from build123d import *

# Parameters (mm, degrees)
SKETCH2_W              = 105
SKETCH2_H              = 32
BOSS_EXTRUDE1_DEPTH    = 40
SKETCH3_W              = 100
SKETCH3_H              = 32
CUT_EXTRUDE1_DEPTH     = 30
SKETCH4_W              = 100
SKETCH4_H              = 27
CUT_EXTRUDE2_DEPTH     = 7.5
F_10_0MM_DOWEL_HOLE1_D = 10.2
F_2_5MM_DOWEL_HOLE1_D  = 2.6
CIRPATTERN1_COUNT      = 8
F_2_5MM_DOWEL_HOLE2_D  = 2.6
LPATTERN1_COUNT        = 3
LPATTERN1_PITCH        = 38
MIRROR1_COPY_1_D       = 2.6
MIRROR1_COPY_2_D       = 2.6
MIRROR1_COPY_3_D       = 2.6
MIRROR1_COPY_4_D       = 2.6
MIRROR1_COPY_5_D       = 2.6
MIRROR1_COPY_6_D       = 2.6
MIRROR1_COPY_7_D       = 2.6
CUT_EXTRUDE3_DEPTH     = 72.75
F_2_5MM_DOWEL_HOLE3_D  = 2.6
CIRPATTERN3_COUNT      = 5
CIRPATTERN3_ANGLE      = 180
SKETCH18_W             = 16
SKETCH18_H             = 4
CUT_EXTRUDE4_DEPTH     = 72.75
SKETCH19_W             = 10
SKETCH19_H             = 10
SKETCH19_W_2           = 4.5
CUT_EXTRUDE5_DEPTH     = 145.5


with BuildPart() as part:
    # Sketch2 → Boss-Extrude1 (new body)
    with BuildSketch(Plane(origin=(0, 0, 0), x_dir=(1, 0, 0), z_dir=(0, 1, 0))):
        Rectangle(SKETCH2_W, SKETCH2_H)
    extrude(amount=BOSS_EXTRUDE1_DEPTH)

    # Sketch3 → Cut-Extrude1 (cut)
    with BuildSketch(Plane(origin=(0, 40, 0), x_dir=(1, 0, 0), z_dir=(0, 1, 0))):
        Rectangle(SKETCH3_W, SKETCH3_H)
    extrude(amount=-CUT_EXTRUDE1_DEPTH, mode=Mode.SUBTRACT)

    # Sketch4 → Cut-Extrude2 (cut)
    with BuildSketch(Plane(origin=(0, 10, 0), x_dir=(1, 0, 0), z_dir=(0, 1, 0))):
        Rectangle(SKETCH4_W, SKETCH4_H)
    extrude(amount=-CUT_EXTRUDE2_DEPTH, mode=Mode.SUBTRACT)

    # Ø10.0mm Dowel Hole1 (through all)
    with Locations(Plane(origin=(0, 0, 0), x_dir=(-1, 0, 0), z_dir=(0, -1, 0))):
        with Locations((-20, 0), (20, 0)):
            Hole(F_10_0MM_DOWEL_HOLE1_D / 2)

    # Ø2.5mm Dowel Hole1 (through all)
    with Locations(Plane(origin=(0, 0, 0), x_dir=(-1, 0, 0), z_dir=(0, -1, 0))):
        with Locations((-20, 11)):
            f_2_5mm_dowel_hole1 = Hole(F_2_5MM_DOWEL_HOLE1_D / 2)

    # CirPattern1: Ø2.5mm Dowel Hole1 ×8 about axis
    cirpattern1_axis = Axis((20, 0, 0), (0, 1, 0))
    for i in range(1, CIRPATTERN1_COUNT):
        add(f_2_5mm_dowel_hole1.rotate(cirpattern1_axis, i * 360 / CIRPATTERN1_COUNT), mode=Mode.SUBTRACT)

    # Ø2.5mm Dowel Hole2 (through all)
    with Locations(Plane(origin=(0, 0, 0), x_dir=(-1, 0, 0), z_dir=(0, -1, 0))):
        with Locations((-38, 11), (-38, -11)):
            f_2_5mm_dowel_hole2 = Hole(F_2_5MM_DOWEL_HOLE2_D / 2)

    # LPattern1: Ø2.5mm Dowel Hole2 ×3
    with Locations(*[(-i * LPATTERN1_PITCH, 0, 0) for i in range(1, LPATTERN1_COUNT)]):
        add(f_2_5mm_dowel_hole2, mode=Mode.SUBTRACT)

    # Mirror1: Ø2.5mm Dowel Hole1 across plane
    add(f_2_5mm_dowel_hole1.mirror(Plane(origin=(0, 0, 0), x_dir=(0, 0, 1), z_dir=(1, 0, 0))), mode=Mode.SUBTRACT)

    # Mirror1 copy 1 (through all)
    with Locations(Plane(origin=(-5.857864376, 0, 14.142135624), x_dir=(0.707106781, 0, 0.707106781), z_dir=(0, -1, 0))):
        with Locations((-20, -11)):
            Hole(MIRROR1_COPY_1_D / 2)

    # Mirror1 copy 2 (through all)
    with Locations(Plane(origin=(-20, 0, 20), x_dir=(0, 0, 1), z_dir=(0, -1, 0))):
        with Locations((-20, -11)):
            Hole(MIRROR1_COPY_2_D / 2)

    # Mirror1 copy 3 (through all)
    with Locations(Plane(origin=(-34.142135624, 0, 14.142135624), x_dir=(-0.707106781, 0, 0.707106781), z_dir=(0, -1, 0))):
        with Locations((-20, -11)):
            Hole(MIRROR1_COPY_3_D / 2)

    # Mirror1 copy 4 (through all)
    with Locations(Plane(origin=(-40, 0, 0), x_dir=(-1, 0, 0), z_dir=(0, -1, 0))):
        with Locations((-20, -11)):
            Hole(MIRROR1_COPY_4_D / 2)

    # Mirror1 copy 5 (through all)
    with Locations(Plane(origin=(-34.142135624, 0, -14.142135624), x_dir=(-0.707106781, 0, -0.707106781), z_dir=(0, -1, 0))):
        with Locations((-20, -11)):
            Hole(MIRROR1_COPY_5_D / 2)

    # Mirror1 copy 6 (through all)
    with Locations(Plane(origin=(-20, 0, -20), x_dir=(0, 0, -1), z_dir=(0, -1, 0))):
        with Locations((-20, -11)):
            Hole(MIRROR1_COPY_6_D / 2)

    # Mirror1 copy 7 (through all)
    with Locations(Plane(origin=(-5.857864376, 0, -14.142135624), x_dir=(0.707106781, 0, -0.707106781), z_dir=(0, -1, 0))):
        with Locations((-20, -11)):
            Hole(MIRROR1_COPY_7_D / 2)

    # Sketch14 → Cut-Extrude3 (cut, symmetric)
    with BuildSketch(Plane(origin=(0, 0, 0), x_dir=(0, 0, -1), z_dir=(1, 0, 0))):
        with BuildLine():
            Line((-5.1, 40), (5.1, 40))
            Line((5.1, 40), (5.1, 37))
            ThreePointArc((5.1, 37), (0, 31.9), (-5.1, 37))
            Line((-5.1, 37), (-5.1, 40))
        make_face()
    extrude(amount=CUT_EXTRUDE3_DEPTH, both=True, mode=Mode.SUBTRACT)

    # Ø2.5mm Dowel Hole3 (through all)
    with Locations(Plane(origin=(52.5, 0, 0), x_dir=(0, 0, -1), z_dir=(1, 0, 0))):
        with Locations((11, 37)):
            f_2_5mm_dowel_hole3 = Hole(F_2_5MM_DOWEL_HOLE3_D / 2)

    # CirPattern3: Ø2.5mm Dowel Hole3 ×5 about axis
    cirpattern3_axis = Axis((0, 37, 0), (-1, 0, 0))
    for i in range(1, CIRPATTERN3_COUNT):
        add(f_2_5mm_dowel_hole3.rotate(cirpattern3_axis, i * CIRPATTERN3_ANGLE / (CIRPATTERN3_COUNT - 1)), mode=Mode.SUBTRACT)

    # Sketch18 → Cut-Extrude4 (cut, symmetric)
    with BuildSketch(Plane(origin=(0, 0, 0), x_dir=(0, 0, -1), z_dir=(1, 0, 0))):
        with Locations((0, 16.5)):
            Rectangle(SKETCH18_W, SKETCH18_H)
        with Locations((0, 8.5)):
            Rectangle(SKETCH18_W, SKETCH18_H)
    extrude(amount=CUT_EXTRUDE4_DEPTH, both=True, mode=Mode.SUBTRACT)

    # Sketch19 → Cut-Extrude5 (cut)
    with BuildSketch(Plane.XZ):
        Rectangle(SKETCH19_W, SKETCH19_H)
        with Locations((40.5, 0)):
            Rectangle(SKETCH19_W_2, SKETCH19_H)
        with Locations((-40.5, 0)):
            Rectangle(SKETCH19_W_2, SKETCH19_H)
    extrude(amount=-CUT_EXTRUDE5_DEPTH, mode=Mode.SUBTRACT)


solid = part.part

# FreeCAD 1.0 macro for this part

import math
import FreeCAD as App
import Part
import Sketcher


def add_polygon(sketch, points):
    """Adds a closed chain of lines whose ends are joined by coincident constraints."""
    first, n = sketch.GeometryCount, len(points)
    for a, b in zip(points, points[1:] + points[:1]):
        sketch.addGeometry(Part.LineSegment(App.Vector(*a, 0), App.Vector(*b, 0)), False)
    for i in range(n):
        sketch.addConstraint(Sketcher.Constraint("Coincident", first + i, 2, first + (i + 1) % n, 1))

doc = App.newDocument("Part")
body = doc.addObject("PartDesign::Body", "Body")

sketch1 = doc.addObject("Sketcher::SketchObject", "Sketch")
body.addObject(sketch1)
sketch1.AttachmentSupport = (doc.XZ_Plane, [""])
sketch1.MapMode = "FlatFace"
add_polygon(sketch1, [(-52.5, -16), (-52.5, 16), (52.5, 16), (52.5, -16)])
sketch1.addConstraint([
    Sketcher.Constraint("Vertical", 0),
    Sketcher.Constraint("Horizontal", 1),
    Sketcher.Constraint("Vertical", 2),
    Sketcher.Constraint("Horizontal", 3),
    Sketcher.Constraint("Symmetric", 0, 2, 2, 2, -1, 1),
    Sketcher.Constraint("DistanceX", 1, 1, 1, 2, 105.0),
    Sketcher.Constraint("DistanceY", 0, 1, 0, 2, 32.0),
])
pad1 = doc.addObject("PartDesign::Pad", "Pad")
body.addObject(pad1)
pad1.Profile = sketch1
pad1.Length = 40
pad1.Reversed = True

sketch2 = doc.addObject("Sketcher::SketchObject", "Sketch001")
body.addObject(sketch2)
sketch2.AttachmentSupport = (doc.XZ_Plane, [""])
sketch2.MapMode = "FlatFace"
sketch2.AttachmentOffset = App.Placement(App.Vector(0, 0, -40), App.Rotation())
add_polygon(sketch2, [(-50, -16), (-50, 16), (50, 16), (50, -16)])
sketch2.addConstraint([
    Sketcher.Constraint("Vertical", 0),
    Sketcher.Constraint("Horizontal", 1),
    Sketcher.Constraint("Vertical", 2),
    Sketcher.Constraint("Horizontal", 3),
    Sketcher.Constraint("Symmetric", 0, 2, 2, 2, -1, 1),
    Sketcher.Constraint("DistanceX", 1, 1, 1, 2, 100.0),
    Sketcher.Constraint("DistanceY", 0, 1, 0, 2, 32.0),
])
pocket1 = doc.addObject("PartDesign::Pocket", "Pocket")
body.addObject(pocket1)
pocket1.Profile = sketch2
pocket1.Length = 30
pocket1.Reversed = True

sketch3 = doc.addObject("Sketcher::SketchObject", "Sketch002")
body.addObject(sketch3)
sketch3.AttachmentSupport = (doc.XZ_Plane, [""])
sketch3.MapMode = "FlatFace"
sketch3.AttachmentOffset = App.Placement(App.Vector(0, 0, -10), App.Rotation())
add_polygon(sketch3, [(-50, -13.5), (-50, 13.5), (50, 13.5), (50, -13.5)])
sketch3.addConstraint([
    Sketcher.Constraint("Vertical", 0),
    Sketcher.Constraint("Horizontal", 1),
    Sketcher.Constraint("Vertical", 2),
    Sketcher.Constraint("Horizontal", 3),
    Sketcher.Constraint("Symmetric", 0, 2, 2, 2, -1, 1),
    Sketcher.Constraint("DistanceX", 1, 1, 1, 2, 100.0),
    Sketcher.Constraint("DistanceY", 0, 1, 0, 2, 27.0),
])
pocket2 = doc.addObject("PartDesign::Pocket", "Pocket001")
body.addObject(pocket2)
pocket2.Profile = sketch3
pocket2.Length = 7.5
pocket2.Reversed = True

sketch4 = doc.addObject("Sketcher::SketchObject", "Sketch003")
body.addObject(sketch4)
sketch4.AttachmentSupport = (doc.XZ_Plane, [""])
sketch4.MapMode = "FlatFace"
sketch4.addGeometry([
    Part.Circle(App.Vector(20, 0, 0), App.Vector(0, 0, 1), 5.1),
    Part.Circle(App.Vector(-20, 0, 0), App.Vector(0, 0, 1), 5.1),
], False)
sketch4.addConstraint([
    Sketcher.Constraint("Equal", 0, 1),
    Sketcher.Constraint("Symmetric", 0, 3, 1, 3, -1, 1),
    Sketcher.Constraint("PointOnObject", 0, 3, -1),
    Sketcher.Constraint("Diameter", 0, 10.2),
    Sketcher.Constraint("DistanceX", -1, 1, 0, 3, 20.0),
])
doc.recompute()
hole = doc.addObject("PartDesign::Hole", "Hole")
body.addObject(hole)
hole.Profile = sketch4
hole.ThreadType = "None"
hole.Diameter = 10.2
hole.DepthType = "ThroughAll"

sketch5 = doc.addObject("Sketcher::SketchObject", "Sketch004")
body.addObject(sketch5)
sketch5.AttachmentSupport = (doc.XZ_Plane, [""])
sketch5.MapMode = "FlatFace"
sketch5.addGeometry(Part.Circle(App.Vector(20, -11, 0), App.Vector(0, 0, 1), 1.3), False)
sketch5.addConstraint([
    Sketcher.Constraint("Diameter", 0, 2.6),
    Sketcher.Constraint("DistanceX", -1, 1, 0, 3, 20.0),
    Sketcher.Constraint("DistanceY", 0, 3, -1, 1, 11.0),
])
doc.recompute()
hole2 = doc.addObject("PartDesign::Hole", "Hole001")
body.addObject(hole2)
hole2.Profile = sketch5
hole2.ThreadType = "None"
hole2.Diameter = 2.6
hole2.DepthType = "ThroughAll"
doc.recompute()

datumline = doc.addObject("PartDesign::Line", "DatumLine")
body.addObject(datumline)
datumline.Placement = App.Placement(App.Vector(20, 0, 0), App.Rotation(App.Vector(0, 0, 1), App.Vector(0, 1, 0)))
polarpattern = doc.addObject("PartDesign::PolarPattern", "PolarPattern")
body.addObject(polarpattern)
polarpattern.Originals = [hole2]
polarpattern.Axis = (datumline, [""])
polarpattern.Angle = 360
polarpattern.Occurrences = 8
body.Tip = polarpattern

sketch6 = doc.addObject("Sketcher::SketchObject", "Sketch005")
body.addObject(sketch6)
sketch6.AttachmentSupport = (doc.XZ_Plane, [""])
sketch6.MapMode = "FlatFace"
sketch6.addGeometry([
    Part.Circle(App.Vector(38, -11, 0), App.Vector(0, 0, 1), 1.3),
    Part.Circle(App.Vector(38, 11, 0), App.Vector(0, 0, 1), 1.3),
], False)
sketch6.addConstraint([
    Sketcher.Constraint("Equal", 0, 1),
    Sketcher.Constraint("Symmetric", 0, 3, 1, 3, -1),
    Sketcher.Constraint("Diameter", 0, 2.6),
    Sketcher.Constraint("DistanceX", -1, 1, 0, 3, 38.0),
    Sketcher.Constraint("DistanceY", 0, 3, -1, 1, 11.0),
])
doc.recompute()
hole3 = doc.addObject("PartDesign::Hole", "Hole002")
body.addObject(hole3)
hole3.Profile = sketch6
hole3.ThreadType = "None"
hole3.Diameter = 2.6
hole3.DepthType = "ThroughAll"
doc.recompute()

linearpattern = doc.addObject("PartDesign::LinearPattern", "LinearPattern")
body.addObject(linearpattern)
linearpattern.Originals = [hole3]
linearpattern.Direction = (doc.X_Axis, [""])
linearpattern.Mode = "offset"
linearpattern.Offset = 38
linearpattern.Occurrences = 3
linearpattern.Reversed = True
body.Tip = linearpattern
doc.recompute()

mirrored = doc.addObject("PartDesign::Mirrored", "Mirrored")
body.addObject(mirrored)
mirrored.Originals = [hole2]
mirrored.MirrorPlane = (doc.YZ_Plane, [""])
body.Tip = mirrored

sketch7 = doc.addObject("Sketcher::SketchObject", "Sketch006")
body.addObject(sketch7)
sketch7.AttachmentSupport = (doc.XZ_Plane, [""])
sketch7.MapMode = "FlatFace"
sketch7.addGeometry(Part.Circle(App.Vector(-12.221825, -7.778175, 0), App.Vector(0, 0, 1), 1.3), False)
sketch7.addConstraint([
    Sketcher.Constraint("Diameter", 0, 2.6),
    Sketcher.Constraint("DistanceX", 0, 3, -1, 1, 12.221825),
    Sketcher.Constraint("DistanceY", 0, 3, -1, 1, 7.778175),
])
doc.recompute()
hole4 = doc.addObject("PartDesign::Hole", "Hole003")
body.addObject(hole4)
hole4.Profile = sketch7
hole4.ThreadType = "None"
hole4.Diameter = 2.6
hole4.DepthType = "ThroughAll"

sketch8 = doc.addObject("Sketcher::SketchObject", "Sketch007")
body.addObject(sketch8)
sketch8.AttachmentSupport = (doc.XZ_Plane, [""])
sketch8.MapMode = "FlatFace"
sketch8.addGeometry(Part.Circle(App.Vector(-9, 0, 0), App.Vector(0, 0, 1), 1.3), False)
sketch8.addConstraint([
    Sketcher.Constraint("PointOnObject", 0, 3, -1),
    Sketcher.Constraint("Diameter", 0, 2.6),
    Sketcher.Constraint("DistanceX", 0, 3, -1, 1, 9.0),
])
doc.recompute()
hole5 = doc.addObject("PartDesign::Hole", "Hole004")
body.addObject(hole5)
hole5.Profile = sketch8
hole5.ThreadType = "None"
hole5.Diameter = 2.6
hole5.DepthType = "ThroughAll"

sketch9 = doc.addObject("Sketcher::SketchObject", "Sketch008")
body.addObject(sketch9)
sketch9.AttachmentSupport = (doc.XZ_Plane, [""])
sketch9.MapMode = "FlatFace"
sketch9.addGeometry(Part.Circle(App.Vector(-12.221825, 7.778175, 0), App.Vector(0, 0, 1), 1.3), False)
sketch9.addConstraint([
    Sketcher.Constraint("Diameter", 0, 2.6),
    Sketcher.Constraint("DistanceX", 0, 3, -1, 1, 12.221825),
    Sketcher.Constraint("DistanceY", -1, 1, 0, 3, 7.778175),
])
doc.recompute()
hole6 = doc.addObject("PartDesign::Hole", "Hole005")
body.addObject(hole6)
hole6.Profile = sketch9
hole6.ThreadType = "None"
hole6.Diameter = 2.6
hole6.DepthType = "ThroughAll"

sketch10 = doc.addObject("Sketcher::SketchObject", "Sketch009")
body.addObject(sketch10)
sketch10.AttachmentSupport = (doc.XZ_Plane, [""])
sketch10.MapMode = "FlatFace"
sketch10.addGeometry(Part.Circle(App.Vector(-20, 11, 0), App.Vector(0, 0, 1), 1.3), False)
sketch10.addConstraint([
    Sketcher.Constraint("Diameter", 0, 2.6),
    Sketcher.Constraint("DistanceX", 0, 3, -1, 1, 20.0),
    Sketcher.Constraint("DistanceY", -1, 1, 0, 3, 11.0),
])
doc.recompute()
hole7 = doc.addObject("PartDesign::Hole", "Hole006")
body.addObject(hole7)
hole7.Profile = sketch10
hole7.ThreadType = "None"
hole7.Diameter = 2.6
hole7.DepthType = "ThroughAll"

sketch11 = doc.addObject("Sketcher::SketchObject", "Sketch010")
body.addObject(sketch11)
sketch11.AttachmentSupport = (doc.XZ_Plane, [""])
sketch11.MapMode = "FlatFace"
sketch11.addGeometry(Part.Circle(App.Vector(-27.778175, 7.778175, 0), App.Vector(0, 0, 1), 1.3), False)
sketch11.addConstraint([
    Sketcher.Constraint("Diameter", 0, 2.6),
    Sketcher.Constraint("DistanceX", 0, 3, -1, 1, 27.778175),
    Sketcher.Constraint("DistanceY", -1, 1, 0, 3, 7.778175),
])
doc.recompute()
hole8 = doc.addObject("PartDesign::Hole", "Hole007")
body.addObject(hole8)
hole8.Profile = sketch11
hole8.ThreadType = "None"
hole8.Diameter = 2.6
hole8.DepthType = "ThroughAll"

sketch12 = doc.addObject("Sketcher::SketchObject", "Sketch011")
body.addObject(sketch12)
sketch12.AttachmentSupport = (doc.XZ_Plane, [""])
sketch12.MapMode = "FlatFace"
sketch12.addGeometry(Part.Circle(App.Vector(-31, 0, 0), App.Vector(0, 0, 1), 1.3), False)
sketch12.addConstraint([
    Sketcher.Constraint("PointOnObject", 0, 3, -1),
    Sketcher.Constraint("Diameter", 0, 2.6),
    Sketcher.Constraint("DistanceX", 0, 3, -1, 1, 31.0),
])
doc.recompute()
hole9 = doc.addObject("PartDesign::Hole", "Hole008")
body.addObject(hole9)
hole9.Profile = sketch12
hole9.ThreadType = "None"
hole9.Diameter = 2.6
hole9.DepthType = "ThroughAll"

sketch13 = doc.addObject("Sketcher::SketchObject", "Sketch012")
body.addObject(sketch13)
sketch13.AttachmentSupport = (doc.XZ_Plane, [""])
sketch13.MapMode = "FlatFace"
sketch13.addGeometry(Part.Circle(App.Vector(-27.778175, -7.778175, 0), App.Vector(0, 0, 1), 1.3), False)
sketch13.addConstraint([
    Sketcher.Constraint("Diameter", 0, 2.6),
    Sketcher.Constraint("DistanceX", 0, 3, -1, 1, 27.778175),
    Sketcher.Constraint("DistanceY", 0, 3, -1, 1, 7.778175),
])
doc.recompute()
hole10 = doc.addObject("PartDesign::Hole", "Hole009")
body.addObject(hole10)
hole10.Profile = sketch13
hole10.ThreadType = "None"
hole10.Diameter = 2.6
hole10.DepthType = "ThroughAll"

sketch14 = doc.addObject("Sketcher::SketchObject", "Sketch013")
body.addObject(sketch14)
sketch14.AttachmentSupport = (doc.YZ_Plane, [""])
sketch14.MapMode = "FlatFace"
sketch14.addGeometry([
    Part.LineSegment(App.Vector(40, -5.1, 0), App.Vector(40, 5.1, 0)),
    Part.LineSegment(App.Vector(40, 5.1, 0), App.Vector(37, 5.1, 0)),
    Part.ArcOfCircle(Part.Circle(App.Vector(37, 0, 0), App.Vector(0, 0, 1), 5.1), math.radians(90), math.radians(270)),
    Part.LineSegment(App.Vector(37, -5.1, 0), App.Vector(40, -5.1, 0)),
], False)
sketch14.addConstraint([
    Sketcher.Constraint("Coincident", 0, 2, 1, 1),
    Sketcher.Constraint("Tangent", 1, 2, 2, 1),
    Sketcher.Constraint("Tangent", 2, 2, 3, 1),
    Sketcher.Constraint("Coincident", 3, 2, 0, 1),
    Sketcher.Constraint("Vertical", 0),
    Sketcher.Constraint("Horizontal", 1),
    Sketcher.Constraint("Horizontal", 3),
    Sketcher.Constraint("PointOnObject", 2, 3, -1),
    Sketcher.Constraint("Radius", 2, 5.1),
    Sketcher.Constraint("DistanceX", 1, 2, 1, 1, 3.0),
    Sketcher.Constraint("DistanceX", -1, 1, 2, 3, 37.0),
])
pocket3 = doc.addObject("PartDesign::Pocket", "Pocket002")
body.addObject(pocket3)
pocket3.Profile = sketch14
pocket3.Length = 145.5
pocket3.Midplane = True

sketch15 = doc.addObject("Sketcher::SketchObject", "Sketch014")
body.addObject(sketch15)
sketch15.AttachmentSupport = (doc.YZ_Plane, [""])
sketch15.MapMode = "FlatFace"
sketch15.AttachmentOffset = App.Placement(App.Vector(0, 0, 52.5), App.Rotation())
sketch15.addGeometry(Part.Circle(App.Vector(37, -11, 0), App.Vector(0, 0, 1), 1.3), False)
sketch15.addConstraint([
    Sketcher.Constraint("Diameter", 0, 2.6),
    Sketcher.Constraint("DistanceX", -1, 1, 0, 3, 37.0),
    Sketcher.Constraint("DistanceY", 0, 3, -1, 1, 11.0),
])
doc.recompute()
hole11 = doc.addObject("PartDesign::Hole", "Hole010")
body.addObject(hole11)
hole11.Profile = sketch15
hole11.ThreadType = "None"
hole11.Diameter = 2.6
hole11.DepthType = "ThroughAll"
doc.recompute()

datumline2 = doc.addObject("PartDesign::Line", "DatumLine001")
body.addObject(datumline2)
datumline2.Placement = App.Placement(App.Vector(0, 37, 0), App.Rotation(App.Vector(0, 0, 1), App.Vector(-1, 0, 0)))
polarpattern2 = doc.addObject("PartDesign::PolarPattern", "PolarPattern001")
body.addObject(polarpattern2)
polarpattern2.Originals = [hole11]
polarpattern2.Axis = (datumline2, [""])
polarpattern2.Angle = 180
polarpattern2.Occurrences = 5
body.Tip = polarpattern2

sketch16 = doc.addObject("Sketcher::SketchObject", "Sketch015")
body.addObject(sketch16)
sketch16.AttachmentSupport = (doc.YZ_Plane, [""])
sketch16.MapMode = "FlatFace"
add_polygon(sketch16, [(18.5, 8), (14.5, 8), (14.5, -8), (18.5, -8)])
add_polygon(sketch16, [(10.5, 8), (6.5, 8), (6.5, -8), (10.5, -8)])
sketch16.addConstraint([
    Sketcher.Constraint("Horizontal", 0),
    Sketcher.Constraint("Vertical", 1),
    Sketcher.Constraint("Horizontal", 2),
    Sketcher.Constraint("Vertical", 3),
    Sketcher.Constraint("Horizontal", 4),
    Sketcher.Constraint("Vertical", 5),
    Sketcher.Constraint("Horizontal", 6),
    Sketcher.Constraint("Vertical", 7),
    Sketcher.Constraint("Horizontal", 3, 2, 4, 2),
    Sketcher.Constraint("Horizontal", 2, 2, 5, 2),
    Sketcher.Constraint("Equal", 2, 4),
    Sketcher.Constraint("DistanceX", 0, 2, 0, 1, 4.0),
    Sketcher.Constraint("DistanceY", 1, 2, 1, 1, 16.0),
    Sketcher.Constraint("DistanceY", -1, 1, 0, 2, 8.0),
    Sketcher.Constraint("DistanceX", 4, 2, 0, 2, 8.0),
    Sketcher.Constraint("DistanceX", -1, 1, 0, 2, 14.5),
])
pocket4 = doc.addObject("PartDesign::Pocket", "Pocket003")
body.addObject(pocket4)
pocket4.Profile = sketch16
pocket4.Length = 145.5
pocket4.Midplane = True

sketch17 = doc.addObject("Sketcher::SketchObject", "Sketch016")
body.addObject(sketch17)
sketch17.AttachmentSupport = (doc.XZ_Plane, [""])
sketch17.MapMode = "FlatFace"
add_polygon(sketch17, [(-5, 5), (-5, -5), (5, -5), (5, 5)])
add_polygon(sketch17, [(38.25, 5), (38.25, -5), (42.75, -5), (42.75, 5)])
add_polygon(sketch17, [(-42.75, 5), (-42.75, -5), (-38.25, -5), (-38.25, 5)])
sketch17.addConstraint([
    Sketcher.Constraint("Vertical", 0),
    Sketcher.Constraint("Horizontal", 1),
    Sketcher.Constraint("Vertical", 2),
    Sketcher.Constraint("Horizontal", 3),
    Sketcher.Constraint("Vertical", 4),
    Sketcher.Constraint("Horizontal", 5),
    Sketcher.Constraint("Vertical", 6),
    Sketcher.Constraint("Horizontal", 7),
    Sketcher.Constraint("Vertical", 8),
    Sketcher.Constraint("Horizontal", 9),
    Sketcher.Constraint("Vertical", 10),
    Sketcher.Constraint("Horizontal", 11),
    Sketcher.Constraint("Symmetric", 0, 2, 2, 2, -1, 1),
    Sketcher.Constraint("Symmetric", 6, 2, 8, 2, -1, 1),
    Sketcher.Constraint("Symmetric", 4, 2, 10, 2, -1, 1),
    Sketcher.Constraint("Horizontal", 1, 2, 4, 2),
    Sketcher.Constraint("Horizontal", 3, 2, 6, 2),
    Sketcher.Constraint("Equal", 3, 0),
    Sketcher.Constraint("DistanceX", 1, 1, 1, 2, 10.0),
    Sketcher.Constraint("DistanceX", 5, 1, 5, 2, 4.5),
    Sketcher.Constraint("DistanceX", 8, 2, 4, 2, 81.0),
])
pocket5 = doc.addObject("PartDesign::Pocket", "Pocket004")
body.addObject(pocket5)
pocket5.Profile = sketch17
pocket5.Length = 145.5

doc.recompute()
